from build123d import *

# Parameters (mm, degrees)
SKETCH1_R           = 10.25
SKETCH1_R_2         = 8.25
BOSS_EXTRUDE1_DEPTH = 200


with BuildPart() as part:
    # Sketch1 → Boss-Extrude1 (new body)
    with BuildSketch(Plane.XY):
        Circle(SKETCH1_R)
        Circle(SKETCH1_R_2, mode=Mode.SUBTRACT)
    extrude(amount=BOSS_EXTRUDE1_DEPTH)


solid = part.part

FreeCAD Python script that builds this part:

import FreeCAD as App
import Part
import Sketcher
from FreeCAD import Vector

doc = App.newDocument("Part")
body = doc.addObject("PartDesign::Body", "Body")

# Sketch on XY plane
sketch1 = body.newObject("Sketcher::SketchObject", "Sketch")
sketch1.AttachmentSupport = (doc.getObject("XY_Plane"), [""])
sketch1.MapMode = "FlatFace"
sketch1.addGeometry([
    Part.Circle(Vector(0, 0, 0), Vector(0, 0, 1), 10),
    Part.Circle(Vector(0, 0, 0), Vector(0, 0, 1), 8),
], False)
sketch1.addConstraint([
    Sketcher.Constraint("Coincident", 0, 3, -1, 1),
    Sketcher.Constraint("Coincident", 1, 3, -1, 1),
    Sketcher.Constraint("Diameter", 0, 20.5),
    Sketcher.Constraint("Diameter", 1, 16.5),
])
pad1 = body.newObject("PartDesign::Pad", "Pad")
pad1.Profile = sketch1
pad1.Length = 200

doc.recompute()
